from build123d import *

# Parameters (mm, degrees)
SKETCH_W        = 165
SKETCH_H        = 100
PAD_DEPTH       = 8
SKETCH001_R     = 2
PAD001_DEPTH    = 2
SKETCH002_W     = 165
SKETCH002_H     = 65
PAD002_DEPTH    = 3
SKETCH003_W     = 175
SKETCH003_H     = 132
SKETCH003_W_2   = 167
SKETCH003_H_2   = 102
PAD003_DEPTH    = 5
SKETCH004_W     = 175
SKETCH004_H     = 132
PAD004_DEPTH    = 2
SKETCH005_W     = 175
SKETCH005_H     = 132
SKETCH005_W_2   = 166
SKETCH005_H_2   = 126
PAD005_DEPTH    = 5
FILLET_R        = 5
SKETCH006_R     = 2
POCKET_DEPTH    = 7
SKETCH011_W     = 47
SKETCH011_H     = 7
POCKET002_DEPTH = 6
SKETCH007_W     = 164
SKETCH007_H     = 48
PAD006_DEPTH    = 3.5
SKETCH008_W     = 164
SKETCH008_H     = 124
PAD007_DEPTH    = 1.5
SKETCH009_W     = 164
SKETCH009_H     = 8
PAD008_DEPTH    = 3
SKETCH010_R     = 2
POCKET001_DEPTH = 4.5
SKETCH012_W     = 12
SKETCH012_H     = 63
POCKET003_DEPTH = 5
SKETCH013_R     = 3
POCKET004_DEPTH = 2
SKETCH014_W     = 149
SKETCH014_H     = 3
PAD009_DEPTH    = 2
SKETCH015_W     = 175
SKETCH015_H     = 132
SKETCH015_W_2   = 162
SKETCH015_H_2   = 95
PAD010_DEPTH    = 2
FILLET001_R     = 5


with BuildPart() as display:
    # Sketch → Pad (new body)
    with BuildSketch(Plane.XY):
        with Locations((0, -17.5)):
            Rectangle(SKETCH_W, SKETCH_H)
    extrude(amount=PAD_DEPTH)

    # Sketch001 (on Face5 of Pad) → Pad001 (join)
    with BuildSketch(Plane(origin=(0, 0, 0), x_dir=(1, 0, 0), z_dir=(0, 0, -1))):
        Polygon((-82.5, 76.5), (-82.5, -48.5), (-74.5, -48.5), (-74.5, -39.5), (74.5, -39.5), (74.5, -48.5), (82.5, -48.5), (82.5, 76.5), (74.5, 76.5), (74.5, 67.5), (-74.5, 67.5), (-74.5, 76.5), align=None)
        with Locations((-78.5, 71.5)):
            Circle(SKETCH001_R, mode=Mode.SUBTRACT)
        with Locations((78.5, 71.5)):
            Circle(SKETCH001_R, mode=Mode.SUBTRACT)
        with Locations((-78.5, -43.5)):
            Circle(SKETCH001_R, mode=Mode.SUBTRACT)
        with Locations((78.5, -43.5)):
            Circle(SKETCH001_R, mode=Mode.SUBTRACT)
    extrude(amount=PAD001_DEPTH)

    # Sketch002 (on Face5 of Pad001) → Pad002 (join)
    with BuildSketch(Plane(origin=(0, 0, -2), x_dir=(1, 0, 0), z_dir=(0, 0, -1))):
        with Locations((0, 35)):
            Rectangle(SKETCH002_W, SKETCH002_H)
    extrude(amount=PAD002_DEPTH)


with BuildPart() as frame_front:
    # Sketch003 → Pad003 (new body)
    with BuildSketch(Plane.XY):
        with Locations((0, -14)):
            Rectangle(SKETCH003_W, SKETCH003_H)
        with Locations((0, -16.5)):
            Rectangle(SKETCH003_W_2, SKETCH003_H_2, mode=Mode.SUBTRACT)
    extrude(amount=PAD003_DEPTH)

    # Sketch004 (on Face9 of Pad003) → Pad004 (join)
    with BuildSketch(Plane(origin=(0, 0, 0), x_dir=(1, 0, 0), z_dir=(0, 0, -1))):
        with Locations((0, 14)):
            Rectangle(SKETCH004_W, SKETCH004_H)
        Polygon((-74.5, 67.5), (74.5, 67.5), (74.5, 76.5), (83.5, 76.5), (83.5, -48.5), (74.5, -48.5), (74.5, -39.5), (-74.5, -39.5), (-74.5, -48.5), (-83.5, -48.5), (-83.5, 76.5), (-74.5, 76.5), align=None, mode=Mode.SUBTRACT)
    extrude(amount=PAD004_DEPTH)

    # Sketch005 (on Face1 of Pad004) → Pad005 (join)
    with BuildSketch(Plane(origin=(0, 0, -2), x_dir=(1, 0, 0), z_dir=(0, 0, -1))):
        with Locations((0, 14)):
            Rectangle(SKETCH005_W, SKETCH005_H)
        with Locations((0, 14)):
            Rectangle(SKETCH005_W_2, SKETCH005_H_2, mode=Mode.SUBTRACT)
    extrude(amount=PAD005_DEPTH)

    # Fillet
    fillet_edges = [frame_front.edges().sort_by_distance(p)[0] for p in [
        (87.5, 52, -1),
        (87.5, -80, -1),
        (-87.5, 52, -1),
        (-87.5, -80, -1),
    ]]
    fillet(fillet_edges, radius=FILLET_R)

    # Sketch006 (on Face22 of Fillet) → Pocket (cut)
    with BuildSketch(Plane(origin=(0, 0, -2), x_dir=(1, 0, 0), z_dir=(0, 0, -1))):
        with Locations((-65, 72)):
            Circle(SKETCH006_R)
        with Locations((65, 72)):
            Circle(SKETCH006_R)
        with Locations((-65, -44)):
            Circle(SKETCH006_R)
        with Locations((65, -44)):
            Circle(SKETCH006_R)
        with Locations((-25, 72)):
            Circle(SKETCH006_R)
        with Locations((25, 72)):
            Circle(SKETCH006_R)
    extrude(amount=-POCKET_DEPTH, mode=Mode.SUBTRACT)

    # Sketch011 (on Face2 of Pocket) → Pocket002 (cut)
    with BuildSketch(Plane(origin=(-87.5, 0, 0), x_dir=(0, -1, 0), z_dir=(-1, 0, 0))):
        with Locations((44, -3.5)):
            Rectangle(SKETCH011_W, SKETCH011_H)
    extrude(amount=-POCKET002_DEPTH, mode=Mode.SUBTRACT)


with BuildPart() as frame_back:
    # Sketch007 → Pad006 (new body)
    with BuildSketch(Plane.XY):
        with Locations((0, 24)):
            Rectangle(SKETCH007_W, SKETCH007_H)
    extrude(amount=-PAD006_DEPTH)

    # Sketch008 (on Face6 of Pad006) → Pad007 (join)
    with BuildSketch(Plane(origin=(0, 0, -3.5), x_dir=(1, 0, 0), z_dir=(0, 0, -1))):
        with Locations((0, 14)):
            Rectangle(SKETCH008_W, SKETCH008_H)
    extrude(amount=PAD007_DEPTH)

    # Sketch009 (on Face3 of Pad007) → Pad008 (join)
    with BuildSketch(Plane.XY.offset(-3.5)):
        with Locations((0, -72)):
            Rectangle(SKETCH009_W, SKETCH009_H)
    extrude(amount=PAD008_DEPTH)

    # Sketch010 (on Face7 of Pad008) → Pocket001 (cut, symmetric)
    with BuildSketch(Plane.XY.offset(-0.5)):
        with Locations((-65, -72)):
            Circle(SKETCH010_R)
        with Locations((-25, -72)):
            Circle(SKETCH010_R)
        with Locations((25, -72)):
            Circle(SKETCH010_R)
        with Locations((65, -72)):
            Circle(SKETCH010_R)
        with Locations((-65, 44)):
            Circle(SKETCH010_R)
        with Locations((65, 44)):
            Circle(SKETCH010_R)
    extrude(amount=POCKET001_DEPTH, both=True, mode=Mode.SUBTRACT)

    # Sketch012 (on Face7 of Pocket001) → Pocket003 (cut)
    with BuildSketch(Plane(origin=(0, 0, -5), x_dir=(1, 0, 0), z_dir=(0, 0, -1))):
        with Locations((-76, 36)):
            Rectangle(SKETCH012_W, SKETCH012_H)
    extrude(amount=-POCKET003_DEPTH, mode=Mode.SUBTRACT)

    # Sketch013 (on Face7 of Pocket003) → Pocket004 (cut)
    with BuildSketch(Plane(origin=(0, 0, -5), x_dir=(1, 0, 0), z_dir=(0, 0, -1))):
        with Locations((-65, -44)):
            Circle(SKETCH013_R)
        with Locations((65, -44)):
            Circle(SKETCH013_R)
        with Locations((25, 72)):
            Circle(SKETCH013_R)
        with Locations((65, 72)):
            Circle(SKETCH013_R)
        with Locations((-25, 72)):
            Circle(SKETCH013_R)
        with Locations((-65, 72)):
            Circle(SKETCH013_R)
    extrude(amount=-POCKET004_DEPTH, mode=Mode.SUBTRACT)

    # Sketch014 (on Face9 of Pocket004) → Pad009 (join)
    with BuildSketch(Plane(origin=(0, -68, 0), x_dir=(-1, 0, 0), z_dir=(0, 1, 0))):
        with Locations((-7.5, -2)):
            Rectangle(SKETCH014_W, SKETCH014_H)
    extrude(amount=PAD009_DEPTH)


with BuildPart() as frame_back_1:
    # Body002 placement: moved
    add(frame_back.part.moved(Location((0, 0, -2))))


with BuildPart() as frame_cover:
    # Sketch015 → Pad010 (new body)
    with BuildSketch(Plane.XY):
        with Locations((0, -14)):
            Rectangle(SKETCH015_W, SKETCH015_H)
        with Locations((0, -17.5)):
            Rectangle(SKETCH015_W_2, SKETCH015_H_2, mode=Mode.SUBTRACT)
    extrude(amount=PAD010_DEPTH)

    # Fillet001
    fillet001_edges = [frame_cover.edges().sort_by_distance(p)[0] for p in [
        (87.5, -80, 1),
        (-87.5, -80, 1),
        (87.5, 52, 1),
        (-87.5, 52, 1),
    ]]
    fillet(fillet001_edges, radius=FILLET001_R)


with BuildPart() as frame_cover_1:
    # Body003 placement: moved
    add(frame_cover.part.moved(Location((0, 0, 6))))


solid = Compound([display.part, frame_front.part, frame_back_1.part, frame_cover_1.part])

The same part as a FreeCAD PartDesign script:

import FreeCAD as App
import Part
import Sketcher

V = App.Vector


def edges_at(feature, points):
    """Names of the edges that pass closest to the given points."""
    edges = feature.Shape.Edges
    near = lambda p: min(range(len(edges)), key=lambda i: edges[i].distToShape(Part.Vertex(*p))[0])
    return sorted({f"Edge{near(p) + 1}" for p in points})

doc = App.newDocument("Part")
body = doc.addObject("PartDesign::Body", "Body")

# Sketch on XY plane
sketch1 = body.newObject("Sketcher::SketchObject", "Sketch")
sketch1.AttachmentSupport = (doc.getObject("XY_Plane"), [""])
sketch1.MapMode = "FlatFace"
sketch1.addGeometry([
    Part.LineSegment(V(-82, 32, 0), V(-82, -68, 0)),
    Part.LineSegment(V(-82, -68, 0), V(82, -68, 0)),
    Part.LineSegment(V(82, -68, 0), V(82, 32, 0)),
    Part.LineSegment(V(82, 32, 0), V(-82, 32, 0)),
], False)
sketch1.addConstraint([
    Sketcher.Constraint("Coincident", 0, 2, 1, 1),
    Sketcher.Constraint("Coincident", 1, 2, 2, 1),
    Sketcher.Constraint("Coincident", 2, 2, 3, 1),
    Sketcher.Constraint("Coincident", 3, 2, 0, 1),
    Sketcher.Constraint("Vertical", 0),
    Sketcher.Constraint("Horizontal", 1),
    Sketcher.Constraint("Vertical", 2),
    Sketcher.Constraint("Horizontal", 3),
    Sketcher.Constraint("DistanceX", 1, 1, 1, 2, 165.0),
    Sketcher.Constraint("DistanceY", 0, 2, 0, 1, 100.0),
    Sketcher.Constraint("DistanceX", 0, 2, -1, 1, 82.5),
    Sketcher.Constraint("DistanceY", 0, 2, -1, 1, 67.5),
])
pad1 = body.newObject("PartDesign::Pad", "Pad")
pad1.Profile = sketch1
pad1.Length = 8

# Sketch on XY plane
sketch2 = body.newObject("Sketcher::SketchObject", "Sketch001")
sketch2.AttachmentSupport = (doc.getObject("XY_Plane"), [""])
sketch2.MapMode = "FlatFace"
sketch2.addGeometry([
    Part.LineSegment(V(-82.5, -76.5, 0), V(-82.5, 48.5, 0)),  # 0
    Part.LineSegment(V(-82.5, 48.5, 0), V(-74.5, 48.5, 0)),  # 1
    Part.LineSegment(V(-74.5, 48.5, 0), V(-74.5, 39.5, 0)),  # 2
    Part.LineSegment(V(-74.5, 39.5, 0), V(74.5, 39.5, 0)),  # 3
    Part.LineSegment(V(74.5, 39.5, 0), V(74.5, 48.5, 0)),  # 4
    Part.LineSegment(V(74.5, 48.5, 0), V(82.5, 48.5, 0)),  # 5
    Part.LineSegment(V(82.5, 48.5, 0), V(82.5, -76.5, 0)),  # 6
    Part.LineSegment(V(82.5, -76.5, 0), V(74.5, -76.5, 0)),  # 7
    Part.LineSegment(V(74.5, -76.5, 0), V(74.5, -67.5, 0)),  # 8
    Part.LineSegment(V(74.5, -67.5, 0), V(-74.5, -67.5, 0)),  # 9
    Part.LineSegment(V(-74.5, -67.5, 0), V(-74.5, -76.5, 0)),  # 10
    Part.LineSegment(V(-74.5, -76.5, 0), V(-82.5, -76.5, 0)),  # 11
    Part.Circle(V(-78.5, 43.5, 0), V(0, 0, 1), 2),  # 12
    Part.Circle(V(78.5, 43.5, 0), V(0, 0, 1), 2),  # 13
    Part.Circle(V(-78.5, -71.5, 0), V(0, 0, 1), 2),  # 14
    Part.Circle(V(78.5, -71.5, 0), V(0, 0, 1), 2),  # 15
], False)
sketch2.addConstraint([
    Sketcher.Constraint("Coincident", 0, 2, 1, 1),
    Sketcher.Constraint("Coincident", 1, 2, 2, 1),
    Sketcher.Constraint("Coincident", 2, 2, 3, 1),
    Sketcher.Constraint("Coincident", 3, 2, 4, 1),
    Sketcher.Constraint("Coincident", 4, 2, 5, 1),
    Sketcher.Constraint("Coincident", 5, 2, 6, 1),
    Sketcher.Constraint("Coincident", 6, 2, 7, 1),
    Sketcher.Constraint("Coincident", 7, 2, 8, 1),
    Sketcher.Constraint("Coincident", 8, 2, 9, 1),
    Sketcher.Constraint("Coincident", 9, 2, 10, 1),
    Sketcher.Constraint("Coincident", 10, 2, 11, 1),
    Sketcher.Constraint("Coincident", 11, 2, 0, 1),
    Sketcher.Constraint("Vertical", 0),
    Sketcher.Constraint("Horizontal", 1),
    Sketcher.Constraint("Vertical", 2),
    Sketcher.Constraint("Horizontal", 3),
    Sketcher.Constraint("Vertical", 4),
    Sketcher.Constraint("Horizontal", 5),
    Sketcher.Constraint("Vertical", 6),
    Sketcher.Constraint("Horizontal", 7),
    Sketcher.Constraint("Vertical", 8),
    Sketcher.Constraint("Horizontal", 9),
    Sketcher.Constraint("Vertical", 10),
    Sketcher.Constraint("Horizontal", 11),
    Sketcher.Constraint("Equal", 12, 13),
    Sketcher.Constraint("Equal", 13, 14),
    Sketcher.Constraint("Equal", 14, 15),
    Sketcher.Constraint("Symmetric", 12, 3, 13, 3, -2),
    Sketcher.Constraint("Symmetric", 14, 3, 15, 3, -2),
    Sketcher.Constraint("Symmetric", 1, 2, 4, 2, -2),
    Sketcher.Constraint("Symmetric", 7, 2, 10, 2, -2),
    Sketcher.Constraint("Vertical", 12, 3, 14, 3),
    Sketcher.Constraint("Vertical", 4, 2, 7, 2),
    Sketcher.Constraint("Equal", 1, 5),
    Sketcher.Constraint("Equal", 4, 8),
    Sketcher.Constraint("Diameter", 12, 4.0),
    Sketcher.Constraint("DistanceX", 1, 1, 1, 2, 8.0),
    Sketcher.Constraint("DistanceX", 3, 1, 3, 2, 149.0),
    Sketcher.Constraint("DistanceY", 0, 1, 0, 2, 125.0),
    Sketcher.Constraint("DistanceY", 2, 2, 2, 1, 9.0),
    Sketcher.Constraint("DistanceX", 12, 3, 13, 3, 157.0),
    Sketcher.Constraint("DistanceY", 14, 3, 12, 3, 115.0),
    Sketcher.Constraint("DistanceY", 12, 3, 0, 2, 5.0),
    Sketcher.Constraint("DistanceY", -1, 1, 12, 3, 43.5),
])
pad2 = body.newObject("PartDesign::Pad", "Pad001")
pad2.Profile = sketch2
pad2.Length = 2
pad2.Reversed = True

# Sketch on XY plane
sketch3 = body.newObject("Sketcher::SketchObject", "Sketch002")
sketch3.AttachmentSupport = (doc.getObject("XY_Plane"), [""])
sketch3.MapMode = "FlatFace"
sketch3.AttachmentOffset = App.Placement(V(0, 0, -2), App.Rotation())
sketch3.addGeometry([
    Part.LineSegment(V(-82, -68, 0), V(-82, -2, 0)),
    Part.LineSegment(V(-82, -2, 0), V(82, -2, 0)),
    Part.LineSegment(V(82, -2, 0), V(82, -68, 0)),
    Part.LineSegment(V(82, -68, 0), V(-82, -68, 0)),
], False)
sketch3.addConstraint([
    Sketcher.Constraint("Coincident", 0, 2, 1, 1),
    Sketcher.Constraint("Coincident", 1, 2, 2, 1),
    Sketcher.Constraint("Coincident", 2, 2, 3, 1),
    Sketcher.Constraint("Coincident", 3, 2, 0, 1),
    Sketcher.Constraint("Vertical", 0),
    Sketcher.Constraint("Horizontal", 1),
    Sketcher.Constraint("Vertical", 2),
    Sketcher.Constraint("Horizontal", 3),
    Sketcher.Constraint("DistanceX", 1, 1, 1, 2, 165.0),
    Sketcher.Constraint("DistanceY", 0, 1, 0, 2, 65.0),
    Sketcher.Constraint("DistanceX", 0, 2, -1, 1, 82.5),
    Sketcher.Constraint("DistanceY", 0, 2, -1, 1, 2.5),
])
pad3 = body.newObject("PartDesign::Pad", "Pad002")
pad3.Profile = sketch3
pad3.Length = 3
pad3.Reversed = True
body2 = doc.addObject("PartDesign::Body", "Body001")

# Sketch on XY plane
sketch4 = body2.newObject("Sketcher::SketchObject", "Sketch003")
sketch4.AttachmentSupport = (doc.getObject("XY_Plane001"), [""])
sketch4.MapMode = "FlatFace"
sketch4.addGeometry([
    Part.LineSegment(V(-88, 52, 0), V(-88, -80, 0)),  # 0
    Part.LineSegment(V(-88, -80, 0), V(88, -80, 0)),  # 1
    Part.LineSegment(V(88, -80, 0), V(88, 52, 0)),  # 2
    Part.LineSegment(V(88, 52, 0), V(-88, 52, 0)),  # 3
    Part.LineSegment(V(84, -68, 0), V(-84, -68, 0)),  # 4
    Part.LineSegment(V(-84, -68, 0), V(-84, 34, 0)),  # 5
    Part.LineSegment(V(-84, 34, 0), V(84, 34, 0)),  # 6
    Part.LineSegment(V(84, 34, 0), V(84, -68, 0)),  # 7
], False)
sketch4.addConstraint([
    Sketcher.Constraint("Coincident", 0, 2, 1, 1),
    Sketcher.Constraint("Coincident", 1, 2, 2, 1),
    Sketcher.Constraint("Coincident", 2, 2, 3, 1),
    Sketcher.Constraint("Coincident", 3, 2, 0, 1),
    Sketcher.Constraint("Coincident", 4, 2, 5, 1),
    Sketcher.Constraint("Coincident", 5, 2, 6, 1),
    Sketcher.Constraint("Coincident", 6, 2, 7, 1),
    Sketcher.Constraint("Coincident", 7, 2, 4, 1),
    Sketcher.Constraint("Vertical", 0),
    Sketcher.Constraint("Horizontal", 1),
    Sketcher.Constraint("Vertical", 2),
    Sketcher.Constraint("Horizontal", 3),
    Sketcher.Constraint("Horizontal", 4),
    Sketcher.Constraint("Vertical", 5),
    Sketcher.Constraint("Horizontal", 6),
    Sketcher.Constraint("Vertical", 7),
    Sketcher.Constraint("DistanceX", 1, 1, 1, 2, 175.0),
    Sketcher.Constraint("DistanceX", 4, 2, 4, 1, 167.0),
    Sketcher.Constraint("DistanceY", 0, 2, 0, 1, 132.0),
    Sketcher.Constraint("DistanceY", 5, 1, 5, 2, 102.0),
    Sketcher.Constraint("DistanceY", 0, 2, -1, 1, 80.0),
    Sketcher.Constraint("DistanceX", 0, 2, 4, 2, 4.0),
    Sketcher.Constraint("DistanceX", 0, 2, -1, 1, 87.5),
    Sketcher.Constraint("DistanceY", 4, 2, -1, 1, 67.5),
])
pad4 = body2.newObject("PartDesign::Pad", "Pad003")
pad4.Profile = sketch4
pad4.Length = 5

# Sketch on XY plane
sketch5 = body2.newObject("Sketcher::SketchObject", "Sketch004")
sketch5.AttachmentSupport = (doc.getObject("XY_Plane001"), [""])
sketch5.MapMode = "FlatFace"
sketch5.addGeometry([
    Part.LineSegment(V(-88, -80, 0), V(-88, 52, 0)),  # 0
    Part.LineSegment(V(-88, 52, 0), V(88, 52, 0)),  # 1
    Part.LineSegment(V(88, 52, 0), V(88, -80, 0)),  # 2
    Part.LineSegment(V(88, -80, 0), V(-88, -80, 0)),  # 3
    Part.LineSegment(V(-74, -76, 0), V(-74, -68, 0)),  # 4
    Part.LineSegment(V(-74, -68, 0), V(74, -68, 0)),  # 5
    Part.LineSegment(V(74, -68, 0), V(74, -76, 0)),  # 6
    Part.LineSegment(V(74, -76, 0), V(84, -76, 0)),  # 7
    Part.LineSegment(V(84, -76, 0), V(84, 48, 0)),  # 8
    Part.LineSegment(V(84, 48, 0), V(74, 48, 0)),  # 9
    Part.LineSegment(V(74, 48, 0), V(74, 40, 0)),  # 10
    Part.LineSegment(V(74, 40, 0), V(-74, 40, 0)),  # 11
    Part.LineSegment(V(-74, 40, 0), V(-74, 48, 0)),  # 12
    Part.LineSegment(V(-74, 48, 0), V(-84, 48, 0)),  # 13
    Part.LineSegment(V(-84, 48, 0), V(-84, -76, 0)),  # 14
    Part.LineSegment(V(-84, -76, 0), V(-74, -76, 0)),  # 15
], False)
sketch5.addConstraint([
    Sketcher.Constraint("Coincident", 0, 2, 1, 1),
    Sketcher.Constraint("Coincident", 1, 2, 2, 1),
    Sketcher.Constraint("Coincident", 2, 2, 3, 1),
    Sketcher.Constraint("Coincident", 3, 2, 0, 1),
    Sketcher.Constraint("Coincident", 4, 2, 5, 1),
    Sketcher.Constraint("Coincident", 5, 2, 6, 1),
    Sketcher.Constraint("Coincident", 6, 2, 7, 1),
    Sketcher.Constraint("Coincident", 7, 2, 8, 1),
    Sketcher.Constraint("Coincident", 8, 2, 9, 1),
    Sketcher.Constraint("Coincident", 9, 2, 10, 1),
    Sketcher.Constraint("Coincident", 10, 2, 11, 1),
    Sketcher.Constraint("Coincident", 11, 2, 12, 1),
    Sketcher.Constraint("Coincident", 12, 2, 13, 1),
    Sketcher.Constraint("Coincident", 13, 2, 14, 1),
    Sketcher.Constraint("Coincident", 14, 2, 15, 1),
    Sketcher.Constraint("Coincident", 15, 2, 4, 1),
    Sketcher.Constraint("Vertical", 0),
    Sketcher.Constraint("Horizontal", 1),
    Sketcher.Constraint("Vertical", 2),
    Sketcher.Constraint("Horizontal", 3),
    Sketcher.Constraint("Vertical", 4),
    Sketcher.Constraint("Horizontal", 5),
    Sketcher.Constraint("Vertical", 6),
    Sketcher.Constraint("Horizontal", 7),
    Sketcher.Constraint("Vertical", 8),
    Sketcher.Constraint("Horizontal", 9),
    Sketcher.Constraint("Vertical", 10),
    Sketcher.Constraint("Horizontal", 11),
    Sketcher.Constraint("Vertical", 12),
    Sketcher.Constraint("Horizontal", 13),
    Sketcher.Constraint("Vertical", 14),
    Sketcher.Constraint("Horizontal", 15),
    Sketcher.Constraint("Symmetric", 9, 2, 12, 2, -2),
    Sketcher.Constraint("Symmetric", 7, 2, 14, 2, -2),
    Sketcher.Constraint("Vertical", 6, 2, 9, 2),
    Sketcher.Constraint("Vertical", 4, 2, 11, 2),
    Sketcher.Constraint("Equal", 15, 4),
    Sketcher.Constraint("Equal", 6, 10),
    Sketcher.Constraint("DistanceX", 1, 1, 1, 2, 175.0),
    Sketcher.Constraint("DistanceX", 5, 1, 5, 2, 149.0),
    Sketcher.Constraint("DistanceX", 7, 1, 7, 2, 9.0),
    Sketcher.Constraint("DistanceY", 0, 1, 0, 2, 132.0),
    Sketcher.Constraint("DistanceY", 8, 1, 8, 2, 125.0),
    Sketcher.Constraint("DistanceY", -1, 1, 0, 2, 52.0),
    Sketcher.Constraint("DistanceX", 3, 2, 4, 2, 13.0),
    Sketcher.Constraint("DistanceY", 4, 2, -1, 1, 67.5),
])
pad5 = body2.newObject("PartDesign::Pad", "Pad004")
pad5.Profile = sketch5
pad5.Length = 2
pad5.Reversed = True

# Sketch on XY plane
sketch6 = body2.newObject("Sketcher::SketchObject", "Sketch005")
sketch6.AttachmentSupport = (doc.getObject("XY_Plane001"), [""])
sketch6.MapMode = "FlatFace"
sketch6.AttachmentOffset = App.Placement(V(0, 0, -2), App.Rotation())
sketch6.addGeometry([
    Part.LineSegment(V(-88, -80, 0), V(-88, 52, 0)),  # 0
    Part.LineSegment(V(-88, 52, 0), V(88, 52, 0)),  # 1
    Part.LineSegment(V(88, 52, 0), V(88, -80, 0)),  # 2
    Part.LineSegment(V(88, -80, 0), V(-88, -80, 0)),  # 3
    Part.LineSegment(V(83, 49, 0), V(-83, 49, 0)),  # 4
    Part.LineSegment(V(-83, 49, 0), V(-83, -77, 0)),  # 5
    Part.LineSegment(V(-83, -77, 0), V(83, -77, 0)),  # 6
    Part.LineSegment(V(83, -77, 0), V(83, 49, 0)),  # 7
], False)
sketch6.addConstraint([
    Sketcher.Constraint("Coincident", 0, 2, 1, 1),
    Sketcher.Constraint("Coincident", 1, 2, 2, 1),
    Sketcher.Constraint("Coincident", 2, 2, 3, 1),
    Sketcher.Constraint("Coincident", 3, 2, 0, 1),
    Sketcher.Constraint("Coincident", 4, 2, 5, 1),
    Sketcher.Constraint("Coincident", 5, 2, 6, 1),
    Sketcher.Constraint("Coincident", 6, 2, 7, 1),
    Sketcher.Constraint("Coincident", 7, 2, 4, 1),
    Sketcher.Constraint("Vertical", 0),
    Sketcher.Constraint("Horizontal", 1),
    Sketcher.Constraint("Vertical", 2),
    Sketcher.Constraint("Horizontal", 3),
    Sketcher.Constraint("Horizontal", 4),
    Sketcher.Constraint("Vertical", 5),
    Sketcher.Constraint("Horizontal", 6),
    Sketcher.Constraint("Vertical", 7),
    Sketcher.Constraint("DistanceX", 1, 1, 1, 2, 175.0),
    Sketcher.Constraint("DistanceX", 4, 2, 4, 1, 166.0),
    Sketcher.Constraint("DistanceY", 0, 1, 0, 2, 132.0),
    Sketcher.Constraint("DistanceY", 5, 2, 5, 1, 126.0),
    Sketcher.Constraint("DistanceY", -1, 1, 0, 2, 52.0),
    Sketcher.Constraint("DistanceX", 4, 2, -1, 1, 83.0),
    Sketcher.Constraint("DistanceY", -1, 1, 4, 2, 49.0),
    Sketcher.Constraint("DistanceX", 0, 2, -1, 1, 87.5),
])
pad6 = body2.newObject("PartDesign::Pad", "Pad005")
pad6.Profile = sketch6
pad6.Length = 5
pad6.Reversed = True
doc.recompute()

fillet = body2.newObject("PartDesign::Fillet", "Fillet")
fillet.Base = (pad6, edges_at(pad6, [
    (87.5, 52, -1),
    (87.5, -80, -1),
    (-87.5, 52, -1),
    (-87.5, -80, -1),
]))
fillet.Radius = 5

# Sketch on XY plane
sketch7 = body2.newObject("Sketcher::SketchObject", "Sketch006")
sketch7.AttachmentSupport = (doc.getObject("XY_Plane001"), [""])
sketch7.MapMode = "FlatFace"
sketch7.AttachmentOffset = App.Placement(V(0, 0, -2), App.Rotation())
sketch7.addGeometry([
    Part.Circle(V(-65, -72, 0), V(0, 0, 1), 2),  # 0
    Part.Circle(V(65, -72, 0), V(0, 0, 1), 2),  # 1
    Part.Circle(V(-65, 44, 0), V(0, 0, 1), 2),  # 2
    Part.Circle(V(65, 44, 0), V(0, 0, 1), 2),  # 3
    Part.Circle(V(-25, -72, 0), V(0, 0, 1), 2),  # 4
    Part.Circle(V(25, -72, 0), V(0, 0, 1), 2),  # 5
], False)
sketch7.addConstraint([
    Sketcher.Constraint("Equal", 0, 1),
    Sketcher.Constraint("Equal", 1, 2),
    Sketcher.Constraint("Equal", 2, 3),
    Sketcher.Constraint("Equal", 3, 4),
    Sketcher.Constraint("Equal", 4, 5),
    Sketcher.Constraint("Symmetric", 0, 3, 1, 3, -2),
    Sketcher.Constraint("Symmetric", 2, 3, 3, 3, -2),
    Sketcher.Constraint("Symmetric", 4, 3, 5, 3, -2),
    Sketcher.Constraint("Horizontal", 1, 3, 4, 3),
    Sketcher.Constraint("Vertical", 0, 3, 2, 3),
    Sketcher.Constraint("Diameter", 0, 4.0),
    Sketcher.Constraint("DistanceX", 0, 3, -1, 1, 65.0),
    Sketcher.Constraint("DistanceY", 0, 3, -1, 1, 72.0),
    Sketcher.Constraint("DistanceY", -1, 1, 2, 3, 44.0),
    Sketcher.Constraint("DistanceX", 4, 3, -1, 1, 25.0),
])
pocket1 = body2.newObject("PartDesign::Pocket", "Pocket")
pocket1.Profile = sketch7
pocket1.Length = 7
pocket1.Reversed = True

# Sketch on YZ plane
sketch8 = body2.newObject("Sketcher::SketchObject", "Sketch007")
sketch8.AttachmentSupport = (doc.getObject("YZ_Plane001"), [""])
sketch8.MapMode = "FlatFace"
sketch8.AttachmentOffset = App.Placement(V(0, 0, -87.5), App.Rotation())
sketch8.addGeometry([
    Part.LineSegment(V(-20, 0, 0), V(-20, -7, 0)),
    Part.LineSegment(V(-20, -7, 0), V(-68, -7, 0)),
    Part.LineSegment(V(-68, -7, 0), V(-68, 0, 0)),
    Part.LineSegment(V(-68, 0, 0), V(-20, 0, 0)),
], False)
sketch8.addConstraint([
    Sketcher.Constraint("Coincident", 0, 2, 1, 1),
    Sketcher.Constraint("Coincident", 1, 2, 2, 1),
    Sketcher.Constraint("Coincident", 2, 2, 3, 1),
    Sketcher.Constraint("Coincident", 3, 2, 0, 1),
    Sketcher.Constraint("Vertical", 0),
    Sketcher.Constraint("Horizontal", 1),
    Sketcher.Constraint("Vertical", 2),
    Sketcher.Constraint("Horizontal", 3),
    Sketcher.Constraint("PointOnObject", 2, 2, -1),
    Sketcher.Constraint("DistanceX", 1, 2, 1, 1, 47.0),
    Sketcher.Constraint("DistanceY", 0, 2, 0, 1, 7.0),
    Sketcher.Constraint("DistanceX", 0, 2, -1, 1, 20.5),
])
pocket2 = body2.newObject("PartDesign::Pocket", "Pocket001")
pocket2.Profile = sketch8
pocket2.Length = 6
pocket2.Reversed = True
body3 = doc.addObject("PartDesign::Body", "Body002")

# Sketch on XY plane
sketch9 = body3.newObject("Sketcher::SketchObject", "Sketch008")
sketch9.AttachmentSupport = (doc.getObject("XY_Plane002"), [""])
sketch9.MapMode = "FlatFace"
sketch9.addGeometry([
    Part.LineSegment(V(-82, 48, 0), V(-82, 0, 0)),
    Part.LineSegment(V(-82, 0, 0), V(82, 0, 0)),
    Part.LineSegment(V(82, 0, 0), V(82, 48, 0)),
    Part.LineSegment(V(82, 48, 0), V(-82, 48, 0)),
], False)
sketch9.addConstraint([
    Sketcher.Constraint("Coincident", 0, 2, 1, 1),
    Sketcher.Constraint("Coincident", 1, 2, 2, 1),
    Sketcher.Constraint("Coincident", 2, 2, 3, 1),
    Sketcher.Constraint("Coincident", 3, 2, 0, 1),
    Sketcher.Constraint("Vertical", 0),
    Sketcher.Constraint("Horizontal", 1),
    Sketcher.Constraint("Vertical", 2),
    Sketcher.Constraint("Horizontal", 3),
    Sketcher.Constraint("Symmetric", 0, 2, 1, 2, -1, 1),
    Sketcher.Constraint("DistanceX", 1, 1, 1, 2, 164.0),
    Sketcher.Constraint("DistanceY", 0, 2, 0, 1, 48.0),
])
pad7 = body3.newObject("PartDesign::Pad", "Pad006")
pad7.Profile = sketch9
pad7.Length = 3.5
pad7.Reversed = True

# Sketch on XY plane
sketch10 = body3.newObject("Sketcher::SketchObject", "Sketch009")
sketch10.AttachmentSupport = (doc.getObject("XY_Plane002"), [""])
sketch10.MapMode = "FlatFace"
sketch10.AttachmentOffset = App.Placement(V(0, 0, -3.5), App.Rotation())
sketch10.addGeometry([
    Part.LineSegment(V(-82, -76, 0), V(-82, 48, 0)),
    Part.LineSegment(V(-82, 48, 0), V(82, 48, 0)),
    Part.LineSegment(V(82, 48, 0), V(82, -76, 0)),
    Part.LineSegment(V(82, -76, 0), V(-82, -76, 0)),
], False)
sketch10.addConstraint([
    Sketcher.Constraint("Coincident", 0, 2, 1, 1),
    Sketcher.Constraint("Coincident", 1, 2, 2, 1),
    Sketcher.Constraint("Coincident", 2, 2, 3, 1),
    Sketcher.Constraint("Coincident", 3, 2, 0, 1),
    Sketcher.Constraint("Vertical", 0),
    Sketcher.Constraint("Horizontal", 1),
    Sketcher.Constraint("Vertical", 2),
    Sketcher.Constraint("Horizontal", 3),
    Sketcher.Constraint("DistanceX", 1, 1, 1, 2, 164.0),
    Sketcher.Constraint("DistanceY", 0, 1, 0, 2, 124.0),
    Sketcher.Constraint("DistanceX", 0, 2, -1, 1, 82.0),
    Sketcher.Constraint("DistanceY", -1, 1, 0, 2, 48.0),
])
pad8 = body3.newObject("PartDesign::Pad", "Pad007")
pad8.Profile = sketch10
pad8.Length = 1.5
pad8.Reversed = True

# Sketch on XY plane
sketch11 = body3.newObject("Sketcher::SketchObject", "Sketch010")
sketch11.AttachmentSupport = (doc.getObject("XY_Plane002"), [""])
sketch11.MapMode = "FlatFace"
sketch11.AttachmentOffset = App.Placement(V(0, 0, -3.5), App.Rotation())
sketch11.addGeometry([
    Part.LineSegment(V(-82, -68, 0), V(-82, -76, 0)),
    Part.LineSegment(V(-82, -76, 0), V(82, -76, 0)),
    Part.LineSegment(V(82, -76, 0), V(82, -68, 0)),
    Part.LineSegment(V(82, -68, 0), V(-82, -68, 0)),
], False)
sketch11.addConstraint([
    Sketcher.Constraint("Coincident", 0, 2, 1, 1),
    Sketcher.Constraint("Coincident", 1, 2, 2, 1),
    Sketcher.Constraint("Coincident", 2, 2, 3, 1),
    Sketcher.Constraint("Coincident", 3, 2, 0, 1),
    Sketcher.Constraint("Vertical", 0),
    Sketcher.Constraint("Horizontal", 1),
    Sketcher.Constraint("Vertical", 2),
    Sketcher.Constraint("Horizontal", 3),
    Sketcher.Constraint("DistanceX", 1, 1, 1, 2, 164.0),
    Sketcher.Constraint("DistanceY", 0, 2, 0, 1, 8.0),
    Sketcher.Constraint("DistanceX", 0, 2, -1, 1, 82.0),
    Sketcher.Constraint("DistanceY", 0, 2, -1, 1, 76.0),
])
pad9 = body3.newObject("PartDesign::Pad", "Pad008")
pad9.Profile = sketch11
pad9.Length = 3

# Sketch on XY plane
sketch12 = body3.newObject("Sketcher::SketchObject", "Sketch011")
sketch12.AttachmentSupport = (doc.getObject("XY_Plane002"), [""])
sketch12.MapMode = "FlatFace"
sketch12.AttachmentOffset = App.Placement(V(0, 0, -0.5), App.Rotation())
sketch12.addGeometry([
    Part.Circle(V(-65, -72, 0), V(0, 0, 1), 2),  # 0
    Part.Circle(V(-25, -72, 0), V(0, 0, 1), 2),  # 1
    Part.Circle(V(25, -72, 0), V(0, 0, 1), 2),  # 2
    Part.Circle(V(65, -72, 0), V(0, 0, 1), 2),  # 3
    Part.Circle(V(-65, 44, 0), V(0, 0, 1), 2),  # 4
    Part.Circle(V(65, 44, 0), V(0, 0, 1), 2),  # 5
], False)
sketch12.addConstraint([
    Sketcher.Constraint("Equal", 0, 1),
    Sketcher.Constraint("Equal", 1, 2),
    Sketcher.Constraint("Equal", 2, 3),
    Sketcher.Constraint("Equal", 3, 4),
    Sketcher.Constraint("Equal", 4, 5),
    Sketcher.Constraint("Symmetric", 1, 3, 2, 3, -2),
    Sketcher.Constraint("Symmetric", 0, 3, 3, 3, -2),
    Sketcher.Constraint("Symmetric", 4, 3, 5, 3, -2),
    Sketcher.Constraint("Horizontal", 0, 3, 1, 3),
    Sketcher.Constraint("Vertical", 0, 3, 4, 3),
    Sketcher.Constraint("Diameter", 0, 4.0),
    Sketcher.Constraint("DistanceX", 0, 3, -1, 1, 65.0),
    Sketcher.Constraint("DistanceY", 0, 3, -1, 1, 72.0),
    Sketcher.Constraint("DistanceX", 1, 3, -1, 1, 25.0),
    Sketcher.Constraint("DistanceY", -1, 1, 4, 3, 44.0),
])
pocket3 = body3.newObject("PartDesign::Pocket", "Pocket002")
pocket3.Profile = sketch12
pocket3.Length = 9
pocket3.Midplane = True

# Sketch on XY plane
sketch13 = body3.newObject("Sketcher::SketchObject", "Sketch012")
sketch13.AttachmentSupport = (doc.getObject("XY_Plane002"), [""])
sketch13.MapMode = "FlatFace"
sketch13.AttachmentOffset = App.Placement(V(0, 0, -5), App.Rotation())
sketch13.addGeometry([
    Part.LineSegment(V(-82, -68, 0), V(-82, -4, 0)),
    Part.LineSegment(V(-82, -4, 0), V(-70, -4, 0)),
    Part.LineSegment(V(-70, -4, 0), V(-70, -68, 0)),
    Part.LineSegment(V(-70, -68, 0), V(-82, -68, 0)),
], False)
sketch13.addConstraint([
    Sketcher.Constraint("Coincident", 0, 2, 1, 1),
    Sketcher.Constraint("Coincident", 1, 2, 2, 1),
    Sketcher.Constraint("Coincident", 2, 2, 3, 1),
    Sketcher.Constraint("Coincident", 3, 2, 0, 1),
    Sketcher.Constraint("Vertical", 0),
    Sketcher.Constraint("Horizontal", 1),
    Sketcher.Constraint("Vertical", 2),
    Sketcher.Constraint("Horizontal", 3),
    Sketcher.Constraint("DistanceX", 1, 1, 1, 2, 12.0),
    Sketcher.Constraint("DistanceY", 0, 1, 0, 2, 63.0),
    Sketcher.Constraint("DistanceX", 0, 2, -1, 1, 82.0),
    Sketcher.Constraint("DistanceY", 0, 2, -1, 1, 4.5),
])
pocket4 = body3.newObject("PartDesign::Pocket", "Pocket003")
pocket4.Profile = sketch13
pocket4.Length = 5
pocket4.Reversed = True

# Sketch on XY plane
sketch14 = body3.newObject("Sketcher::SketchObject", "Sketch013")
sketch14.AttachmentSupport = (doc.getObject("XY_Plane002"), [""])
sketch14.MapMode = "FlatFace"
sketch14.AttachmentOffset = App.Placement(V(0, 0, -5), App.Rotation())
sketch14.addGeometry([
    Part.Circle(V(-65, 44, 0), V(0, 0, 1), 3),  # 0
    Part.Circle(V(65, 44, 0), V(0, 0, 1), 3),  # 1
    Part.Circle(V(25, -72, 0), V(0, 0, 1), 3),  # 2
    Part.Circle(V(65, -72, 0), V(0, 0, 1), 3),  # 3
    Part.Circle(V(-25, -72, 0), V(0, 0, 1), 3),  # 4
    Part.Circle(V(-65, -72, 0), V(0, 0, 1), 3),  # 5
], False)
sketch14.addConstraint([
    Sketcher.Constraint("Equal", 0, 1),
    Sketcher.Constraint("Equal", 1, 2),
    Sketcher.Constraint("Equal", 2, 3),
    Sketcher.Constraint("Equal", 3, 4),
    Sketcher.Constraint("Equal", 4, 5),
    Sketcher.Constraint("Symmetric", 0, 3, 1, 3, -2),
    Sketcher.Constraint("Symmetric", 2, 3, 4, 3, -2),
    Sketcher.Constraint("Symmetric", 3, 3, 5, 3, -2),
    Sketcher.Constraint("Horizontal", 2, 3, 3, 3),
    Sketcher.Constraint("Vertical", 1, 3, 3, 3),
    Sketcher.Constraint("Diameter", 0, 6.0),
    Sketcher.Constraint("DistanceX", 0, 3, -1, 1, 65.0),
    Sketcher.Constraint("DistanceY", -1, 1, 0, 3, 44.0),
    Sketcher.Constraint("DistanceX", -1, 1, 2, 3, 25.0),
    Sketcher.Constraint("DistanceY", 2, 3, -1, 1, 72.0),
])
pocket5 = body3.newObject("PartDesign::Pocket", "Pocket004")
pocket5.Profile = sketch14
pocket5.Length = 2
pocket5.Reversed = True

# Sketch on XZ plane
sketch15 = body3.newObject("Sketcher::SketchObject", "Sketch014")
sketch15.AttachmentSupport = (doc.getObject("XZ_Plane002"), [""])
sketch15.MapMode = "FlatFace"
sketch15.AttachmentOffset = App.Placement(V(0, 0, 68), App.Rotation())
sketch15.addGeometry([
    Part.LineSegment(V(82, -0.5, 0), V(82, -3.5, 0)),
    Part.LineSegment(V(82, -3.5, 0), V(-67, -3.5, 0)),
    Part.LineSegment(V(-67, -3.5, 0), V(-67, -0.5, 0)),
    Part.LineSegment(V(-67, -0.5, 0), V(82, -0.5, 0)),
], False)
sketch15.addConstraint([
    Sketcher.Constraint("Coincident", 0, 2, 1, 1),
    Sketcher.Constraint("Coincident", 1, 2, 2, 1),
    Sketcher.Constraint("Coincident", 2, 2, 3, 1),
    Sketcher.Constraint("Coincident", 3, 2, 0, 1),
    Sketcher.Constraint("Vertical", 0),
    Sketcher.Constraint("Horizontal", 1),
    Sketcher.Constraint("Vertical", 2),
    Sketcher.Constraint("Horizontal", 3),
    Sketcher.Constraint("DistanceX", 1, 2, 1, 1, 149.0),
    Sketcher.Constraint("DistanceY", 0, 2, 0, 1, 3.0),
    Sketcher.Constraint("DistanceX", -1, 1, 0, 2, 82.0),
    Sketcher.Constraint("DistanceY", 0, 2, -1, 1, 3.5),
])
pad10 = body3.newObject("PartDesign::Pad", "Pad009")
pad10.Profile = sketch15
pad10.Length = 2
pad10.Reversed = True
body4 = doc.addObject("PartDesign::Body", "Body003")
doc.recompute()

body3.Placement = App.Placement(V(0, 0, -2), App.Rotation(V(0, 0, 1), 0))
boolean = body4.newObject("PartDesign::Boolean", "Boolean")
boolean.Type = "Fuse"
boolean.addObjects([body3])
body5 = doc.addObject("PartDesign::Body", "Body004")

# Sketch on XY plane
sketch16 = body5.newObject("Sketcher::SketchObject", "Sketch015")
sketch16.AttachmentSupport = (doc.getObject("XY_Plane004"), [""])
sketch16.MapMode = "FlatFace"
sketch16.addGeometry([
    Part.LineSegment(V(-88, 52, 0), V(-88, -80, 0)),  # 0
    Part.LineSegment(V(-88, -80, 0), V(88, -80, 0)),  # 1
    Part.LineSegment(V(88, -80, 0), V(88, 52, 0)),  # 2
    Part.LineSegment(V(88, 52, 0), V(-88, 52, 0)),  # 3
    Part.LineSegment(V(81, -65, 0), V(-81, -65, 0)),  # 4
    Part.LineSegment(V(-81, -65, 0), V(-81, 30, 0)),  # 5
    Part.LineSegment(V(-81, 30, 0), V(81, 30, 0)),  # 6
    Part.LineSegment(V(81, 30, 0), V(81, -65, 0)),  # 7
], False)
sketch16.addConstraint([
    Sketcher.Constraint("Coincident", 0, 2, 1, 1),
    Sketcher.Constraint("Coincident", 1, 2, 2, 1),
    Sketcher.Constraint("Coincident", 2, 2, 3, 1),
    Sketcher.Constraint("Coincident", 3, 2, 0, 1),
    Sketcher.Constraint("Coincident", 4, 2, 5, 1),
    Sketcher.Constraint("Coincident", 5, 2, 6, 1),
    Sketcher.Constraint("Coincident", 6, 2, 7, 1),
    Sketcher.Constraint("Coincident", 7, 2, 4, 1),
    Sketcher.Constraint("Vertical", 0),
    Sketcher.Constraint("Horizontal", 1),
    Sketcher.Constraint("Vertical", 2),
    Sketcher.Constraint("Horizontal", 3),
    Sketcher.Constraint("Horizontal", 4),
    Sketcher.Constraint("Vertical", 5),
    Sketcher.Constraint("Horizontal", 6),
    Sketcher.Constraint("Vertical", 7),
    Sketcher.Constraint("DistanceX", 1, 1, 1, 2, 175.0),
    Sketcher.Constraint("DistanceX", 4, 2, 4, 1, 162.0),
    Sketcher.Constraint("DistanceY", 0, 2, 0, 1, 132.0),
    Sketcher.Constraint("DistanceY", 5, 1, 5, 2, 95.0),
    Sketcher.Constraint("DistanceY", 0, 2, -1, 1, 80.0),
    Sketcher.Constraint("DistanceX", 4, 2, -1, 1, 81.0),
    Sketcher.Constraint("DistanceY", 4, 2, -1, 1, 65.0),
    Sketcher.Constraint("DistanceX", 0, 2, -1, 1, 87.5),
])
pad11 = body5.newObject("PartDesign::Pad", "Pad010")
pad11.Profile = sketch16
pad11.Length = 2
doc.recompute()

fillet2 = body5.newObject("PartDesign::Fillet", "Fillet001")
fillet2.Base = (pad11, edges_at(pad11, [
    (87.5, -80, 1),
    (-87.5, -80, 1),
    (87.5, 52, 1),
    (-87.5, 52, 1),
]))
fillet2.Radius = 5
body6 = doc.addObject("PartDesign::Body", "Body005")
doc.recompute()

body5.Placement = App.Placement(V(0, 0, 6), App.Rotation(V(0, 0, 1), 0))
boolean2 = body6.newObject("PartDesign::Boolean", "Boolean001")
boolean2.Type = "Fuse"
boolean2.addObjects([body5])

doc.recompute()
